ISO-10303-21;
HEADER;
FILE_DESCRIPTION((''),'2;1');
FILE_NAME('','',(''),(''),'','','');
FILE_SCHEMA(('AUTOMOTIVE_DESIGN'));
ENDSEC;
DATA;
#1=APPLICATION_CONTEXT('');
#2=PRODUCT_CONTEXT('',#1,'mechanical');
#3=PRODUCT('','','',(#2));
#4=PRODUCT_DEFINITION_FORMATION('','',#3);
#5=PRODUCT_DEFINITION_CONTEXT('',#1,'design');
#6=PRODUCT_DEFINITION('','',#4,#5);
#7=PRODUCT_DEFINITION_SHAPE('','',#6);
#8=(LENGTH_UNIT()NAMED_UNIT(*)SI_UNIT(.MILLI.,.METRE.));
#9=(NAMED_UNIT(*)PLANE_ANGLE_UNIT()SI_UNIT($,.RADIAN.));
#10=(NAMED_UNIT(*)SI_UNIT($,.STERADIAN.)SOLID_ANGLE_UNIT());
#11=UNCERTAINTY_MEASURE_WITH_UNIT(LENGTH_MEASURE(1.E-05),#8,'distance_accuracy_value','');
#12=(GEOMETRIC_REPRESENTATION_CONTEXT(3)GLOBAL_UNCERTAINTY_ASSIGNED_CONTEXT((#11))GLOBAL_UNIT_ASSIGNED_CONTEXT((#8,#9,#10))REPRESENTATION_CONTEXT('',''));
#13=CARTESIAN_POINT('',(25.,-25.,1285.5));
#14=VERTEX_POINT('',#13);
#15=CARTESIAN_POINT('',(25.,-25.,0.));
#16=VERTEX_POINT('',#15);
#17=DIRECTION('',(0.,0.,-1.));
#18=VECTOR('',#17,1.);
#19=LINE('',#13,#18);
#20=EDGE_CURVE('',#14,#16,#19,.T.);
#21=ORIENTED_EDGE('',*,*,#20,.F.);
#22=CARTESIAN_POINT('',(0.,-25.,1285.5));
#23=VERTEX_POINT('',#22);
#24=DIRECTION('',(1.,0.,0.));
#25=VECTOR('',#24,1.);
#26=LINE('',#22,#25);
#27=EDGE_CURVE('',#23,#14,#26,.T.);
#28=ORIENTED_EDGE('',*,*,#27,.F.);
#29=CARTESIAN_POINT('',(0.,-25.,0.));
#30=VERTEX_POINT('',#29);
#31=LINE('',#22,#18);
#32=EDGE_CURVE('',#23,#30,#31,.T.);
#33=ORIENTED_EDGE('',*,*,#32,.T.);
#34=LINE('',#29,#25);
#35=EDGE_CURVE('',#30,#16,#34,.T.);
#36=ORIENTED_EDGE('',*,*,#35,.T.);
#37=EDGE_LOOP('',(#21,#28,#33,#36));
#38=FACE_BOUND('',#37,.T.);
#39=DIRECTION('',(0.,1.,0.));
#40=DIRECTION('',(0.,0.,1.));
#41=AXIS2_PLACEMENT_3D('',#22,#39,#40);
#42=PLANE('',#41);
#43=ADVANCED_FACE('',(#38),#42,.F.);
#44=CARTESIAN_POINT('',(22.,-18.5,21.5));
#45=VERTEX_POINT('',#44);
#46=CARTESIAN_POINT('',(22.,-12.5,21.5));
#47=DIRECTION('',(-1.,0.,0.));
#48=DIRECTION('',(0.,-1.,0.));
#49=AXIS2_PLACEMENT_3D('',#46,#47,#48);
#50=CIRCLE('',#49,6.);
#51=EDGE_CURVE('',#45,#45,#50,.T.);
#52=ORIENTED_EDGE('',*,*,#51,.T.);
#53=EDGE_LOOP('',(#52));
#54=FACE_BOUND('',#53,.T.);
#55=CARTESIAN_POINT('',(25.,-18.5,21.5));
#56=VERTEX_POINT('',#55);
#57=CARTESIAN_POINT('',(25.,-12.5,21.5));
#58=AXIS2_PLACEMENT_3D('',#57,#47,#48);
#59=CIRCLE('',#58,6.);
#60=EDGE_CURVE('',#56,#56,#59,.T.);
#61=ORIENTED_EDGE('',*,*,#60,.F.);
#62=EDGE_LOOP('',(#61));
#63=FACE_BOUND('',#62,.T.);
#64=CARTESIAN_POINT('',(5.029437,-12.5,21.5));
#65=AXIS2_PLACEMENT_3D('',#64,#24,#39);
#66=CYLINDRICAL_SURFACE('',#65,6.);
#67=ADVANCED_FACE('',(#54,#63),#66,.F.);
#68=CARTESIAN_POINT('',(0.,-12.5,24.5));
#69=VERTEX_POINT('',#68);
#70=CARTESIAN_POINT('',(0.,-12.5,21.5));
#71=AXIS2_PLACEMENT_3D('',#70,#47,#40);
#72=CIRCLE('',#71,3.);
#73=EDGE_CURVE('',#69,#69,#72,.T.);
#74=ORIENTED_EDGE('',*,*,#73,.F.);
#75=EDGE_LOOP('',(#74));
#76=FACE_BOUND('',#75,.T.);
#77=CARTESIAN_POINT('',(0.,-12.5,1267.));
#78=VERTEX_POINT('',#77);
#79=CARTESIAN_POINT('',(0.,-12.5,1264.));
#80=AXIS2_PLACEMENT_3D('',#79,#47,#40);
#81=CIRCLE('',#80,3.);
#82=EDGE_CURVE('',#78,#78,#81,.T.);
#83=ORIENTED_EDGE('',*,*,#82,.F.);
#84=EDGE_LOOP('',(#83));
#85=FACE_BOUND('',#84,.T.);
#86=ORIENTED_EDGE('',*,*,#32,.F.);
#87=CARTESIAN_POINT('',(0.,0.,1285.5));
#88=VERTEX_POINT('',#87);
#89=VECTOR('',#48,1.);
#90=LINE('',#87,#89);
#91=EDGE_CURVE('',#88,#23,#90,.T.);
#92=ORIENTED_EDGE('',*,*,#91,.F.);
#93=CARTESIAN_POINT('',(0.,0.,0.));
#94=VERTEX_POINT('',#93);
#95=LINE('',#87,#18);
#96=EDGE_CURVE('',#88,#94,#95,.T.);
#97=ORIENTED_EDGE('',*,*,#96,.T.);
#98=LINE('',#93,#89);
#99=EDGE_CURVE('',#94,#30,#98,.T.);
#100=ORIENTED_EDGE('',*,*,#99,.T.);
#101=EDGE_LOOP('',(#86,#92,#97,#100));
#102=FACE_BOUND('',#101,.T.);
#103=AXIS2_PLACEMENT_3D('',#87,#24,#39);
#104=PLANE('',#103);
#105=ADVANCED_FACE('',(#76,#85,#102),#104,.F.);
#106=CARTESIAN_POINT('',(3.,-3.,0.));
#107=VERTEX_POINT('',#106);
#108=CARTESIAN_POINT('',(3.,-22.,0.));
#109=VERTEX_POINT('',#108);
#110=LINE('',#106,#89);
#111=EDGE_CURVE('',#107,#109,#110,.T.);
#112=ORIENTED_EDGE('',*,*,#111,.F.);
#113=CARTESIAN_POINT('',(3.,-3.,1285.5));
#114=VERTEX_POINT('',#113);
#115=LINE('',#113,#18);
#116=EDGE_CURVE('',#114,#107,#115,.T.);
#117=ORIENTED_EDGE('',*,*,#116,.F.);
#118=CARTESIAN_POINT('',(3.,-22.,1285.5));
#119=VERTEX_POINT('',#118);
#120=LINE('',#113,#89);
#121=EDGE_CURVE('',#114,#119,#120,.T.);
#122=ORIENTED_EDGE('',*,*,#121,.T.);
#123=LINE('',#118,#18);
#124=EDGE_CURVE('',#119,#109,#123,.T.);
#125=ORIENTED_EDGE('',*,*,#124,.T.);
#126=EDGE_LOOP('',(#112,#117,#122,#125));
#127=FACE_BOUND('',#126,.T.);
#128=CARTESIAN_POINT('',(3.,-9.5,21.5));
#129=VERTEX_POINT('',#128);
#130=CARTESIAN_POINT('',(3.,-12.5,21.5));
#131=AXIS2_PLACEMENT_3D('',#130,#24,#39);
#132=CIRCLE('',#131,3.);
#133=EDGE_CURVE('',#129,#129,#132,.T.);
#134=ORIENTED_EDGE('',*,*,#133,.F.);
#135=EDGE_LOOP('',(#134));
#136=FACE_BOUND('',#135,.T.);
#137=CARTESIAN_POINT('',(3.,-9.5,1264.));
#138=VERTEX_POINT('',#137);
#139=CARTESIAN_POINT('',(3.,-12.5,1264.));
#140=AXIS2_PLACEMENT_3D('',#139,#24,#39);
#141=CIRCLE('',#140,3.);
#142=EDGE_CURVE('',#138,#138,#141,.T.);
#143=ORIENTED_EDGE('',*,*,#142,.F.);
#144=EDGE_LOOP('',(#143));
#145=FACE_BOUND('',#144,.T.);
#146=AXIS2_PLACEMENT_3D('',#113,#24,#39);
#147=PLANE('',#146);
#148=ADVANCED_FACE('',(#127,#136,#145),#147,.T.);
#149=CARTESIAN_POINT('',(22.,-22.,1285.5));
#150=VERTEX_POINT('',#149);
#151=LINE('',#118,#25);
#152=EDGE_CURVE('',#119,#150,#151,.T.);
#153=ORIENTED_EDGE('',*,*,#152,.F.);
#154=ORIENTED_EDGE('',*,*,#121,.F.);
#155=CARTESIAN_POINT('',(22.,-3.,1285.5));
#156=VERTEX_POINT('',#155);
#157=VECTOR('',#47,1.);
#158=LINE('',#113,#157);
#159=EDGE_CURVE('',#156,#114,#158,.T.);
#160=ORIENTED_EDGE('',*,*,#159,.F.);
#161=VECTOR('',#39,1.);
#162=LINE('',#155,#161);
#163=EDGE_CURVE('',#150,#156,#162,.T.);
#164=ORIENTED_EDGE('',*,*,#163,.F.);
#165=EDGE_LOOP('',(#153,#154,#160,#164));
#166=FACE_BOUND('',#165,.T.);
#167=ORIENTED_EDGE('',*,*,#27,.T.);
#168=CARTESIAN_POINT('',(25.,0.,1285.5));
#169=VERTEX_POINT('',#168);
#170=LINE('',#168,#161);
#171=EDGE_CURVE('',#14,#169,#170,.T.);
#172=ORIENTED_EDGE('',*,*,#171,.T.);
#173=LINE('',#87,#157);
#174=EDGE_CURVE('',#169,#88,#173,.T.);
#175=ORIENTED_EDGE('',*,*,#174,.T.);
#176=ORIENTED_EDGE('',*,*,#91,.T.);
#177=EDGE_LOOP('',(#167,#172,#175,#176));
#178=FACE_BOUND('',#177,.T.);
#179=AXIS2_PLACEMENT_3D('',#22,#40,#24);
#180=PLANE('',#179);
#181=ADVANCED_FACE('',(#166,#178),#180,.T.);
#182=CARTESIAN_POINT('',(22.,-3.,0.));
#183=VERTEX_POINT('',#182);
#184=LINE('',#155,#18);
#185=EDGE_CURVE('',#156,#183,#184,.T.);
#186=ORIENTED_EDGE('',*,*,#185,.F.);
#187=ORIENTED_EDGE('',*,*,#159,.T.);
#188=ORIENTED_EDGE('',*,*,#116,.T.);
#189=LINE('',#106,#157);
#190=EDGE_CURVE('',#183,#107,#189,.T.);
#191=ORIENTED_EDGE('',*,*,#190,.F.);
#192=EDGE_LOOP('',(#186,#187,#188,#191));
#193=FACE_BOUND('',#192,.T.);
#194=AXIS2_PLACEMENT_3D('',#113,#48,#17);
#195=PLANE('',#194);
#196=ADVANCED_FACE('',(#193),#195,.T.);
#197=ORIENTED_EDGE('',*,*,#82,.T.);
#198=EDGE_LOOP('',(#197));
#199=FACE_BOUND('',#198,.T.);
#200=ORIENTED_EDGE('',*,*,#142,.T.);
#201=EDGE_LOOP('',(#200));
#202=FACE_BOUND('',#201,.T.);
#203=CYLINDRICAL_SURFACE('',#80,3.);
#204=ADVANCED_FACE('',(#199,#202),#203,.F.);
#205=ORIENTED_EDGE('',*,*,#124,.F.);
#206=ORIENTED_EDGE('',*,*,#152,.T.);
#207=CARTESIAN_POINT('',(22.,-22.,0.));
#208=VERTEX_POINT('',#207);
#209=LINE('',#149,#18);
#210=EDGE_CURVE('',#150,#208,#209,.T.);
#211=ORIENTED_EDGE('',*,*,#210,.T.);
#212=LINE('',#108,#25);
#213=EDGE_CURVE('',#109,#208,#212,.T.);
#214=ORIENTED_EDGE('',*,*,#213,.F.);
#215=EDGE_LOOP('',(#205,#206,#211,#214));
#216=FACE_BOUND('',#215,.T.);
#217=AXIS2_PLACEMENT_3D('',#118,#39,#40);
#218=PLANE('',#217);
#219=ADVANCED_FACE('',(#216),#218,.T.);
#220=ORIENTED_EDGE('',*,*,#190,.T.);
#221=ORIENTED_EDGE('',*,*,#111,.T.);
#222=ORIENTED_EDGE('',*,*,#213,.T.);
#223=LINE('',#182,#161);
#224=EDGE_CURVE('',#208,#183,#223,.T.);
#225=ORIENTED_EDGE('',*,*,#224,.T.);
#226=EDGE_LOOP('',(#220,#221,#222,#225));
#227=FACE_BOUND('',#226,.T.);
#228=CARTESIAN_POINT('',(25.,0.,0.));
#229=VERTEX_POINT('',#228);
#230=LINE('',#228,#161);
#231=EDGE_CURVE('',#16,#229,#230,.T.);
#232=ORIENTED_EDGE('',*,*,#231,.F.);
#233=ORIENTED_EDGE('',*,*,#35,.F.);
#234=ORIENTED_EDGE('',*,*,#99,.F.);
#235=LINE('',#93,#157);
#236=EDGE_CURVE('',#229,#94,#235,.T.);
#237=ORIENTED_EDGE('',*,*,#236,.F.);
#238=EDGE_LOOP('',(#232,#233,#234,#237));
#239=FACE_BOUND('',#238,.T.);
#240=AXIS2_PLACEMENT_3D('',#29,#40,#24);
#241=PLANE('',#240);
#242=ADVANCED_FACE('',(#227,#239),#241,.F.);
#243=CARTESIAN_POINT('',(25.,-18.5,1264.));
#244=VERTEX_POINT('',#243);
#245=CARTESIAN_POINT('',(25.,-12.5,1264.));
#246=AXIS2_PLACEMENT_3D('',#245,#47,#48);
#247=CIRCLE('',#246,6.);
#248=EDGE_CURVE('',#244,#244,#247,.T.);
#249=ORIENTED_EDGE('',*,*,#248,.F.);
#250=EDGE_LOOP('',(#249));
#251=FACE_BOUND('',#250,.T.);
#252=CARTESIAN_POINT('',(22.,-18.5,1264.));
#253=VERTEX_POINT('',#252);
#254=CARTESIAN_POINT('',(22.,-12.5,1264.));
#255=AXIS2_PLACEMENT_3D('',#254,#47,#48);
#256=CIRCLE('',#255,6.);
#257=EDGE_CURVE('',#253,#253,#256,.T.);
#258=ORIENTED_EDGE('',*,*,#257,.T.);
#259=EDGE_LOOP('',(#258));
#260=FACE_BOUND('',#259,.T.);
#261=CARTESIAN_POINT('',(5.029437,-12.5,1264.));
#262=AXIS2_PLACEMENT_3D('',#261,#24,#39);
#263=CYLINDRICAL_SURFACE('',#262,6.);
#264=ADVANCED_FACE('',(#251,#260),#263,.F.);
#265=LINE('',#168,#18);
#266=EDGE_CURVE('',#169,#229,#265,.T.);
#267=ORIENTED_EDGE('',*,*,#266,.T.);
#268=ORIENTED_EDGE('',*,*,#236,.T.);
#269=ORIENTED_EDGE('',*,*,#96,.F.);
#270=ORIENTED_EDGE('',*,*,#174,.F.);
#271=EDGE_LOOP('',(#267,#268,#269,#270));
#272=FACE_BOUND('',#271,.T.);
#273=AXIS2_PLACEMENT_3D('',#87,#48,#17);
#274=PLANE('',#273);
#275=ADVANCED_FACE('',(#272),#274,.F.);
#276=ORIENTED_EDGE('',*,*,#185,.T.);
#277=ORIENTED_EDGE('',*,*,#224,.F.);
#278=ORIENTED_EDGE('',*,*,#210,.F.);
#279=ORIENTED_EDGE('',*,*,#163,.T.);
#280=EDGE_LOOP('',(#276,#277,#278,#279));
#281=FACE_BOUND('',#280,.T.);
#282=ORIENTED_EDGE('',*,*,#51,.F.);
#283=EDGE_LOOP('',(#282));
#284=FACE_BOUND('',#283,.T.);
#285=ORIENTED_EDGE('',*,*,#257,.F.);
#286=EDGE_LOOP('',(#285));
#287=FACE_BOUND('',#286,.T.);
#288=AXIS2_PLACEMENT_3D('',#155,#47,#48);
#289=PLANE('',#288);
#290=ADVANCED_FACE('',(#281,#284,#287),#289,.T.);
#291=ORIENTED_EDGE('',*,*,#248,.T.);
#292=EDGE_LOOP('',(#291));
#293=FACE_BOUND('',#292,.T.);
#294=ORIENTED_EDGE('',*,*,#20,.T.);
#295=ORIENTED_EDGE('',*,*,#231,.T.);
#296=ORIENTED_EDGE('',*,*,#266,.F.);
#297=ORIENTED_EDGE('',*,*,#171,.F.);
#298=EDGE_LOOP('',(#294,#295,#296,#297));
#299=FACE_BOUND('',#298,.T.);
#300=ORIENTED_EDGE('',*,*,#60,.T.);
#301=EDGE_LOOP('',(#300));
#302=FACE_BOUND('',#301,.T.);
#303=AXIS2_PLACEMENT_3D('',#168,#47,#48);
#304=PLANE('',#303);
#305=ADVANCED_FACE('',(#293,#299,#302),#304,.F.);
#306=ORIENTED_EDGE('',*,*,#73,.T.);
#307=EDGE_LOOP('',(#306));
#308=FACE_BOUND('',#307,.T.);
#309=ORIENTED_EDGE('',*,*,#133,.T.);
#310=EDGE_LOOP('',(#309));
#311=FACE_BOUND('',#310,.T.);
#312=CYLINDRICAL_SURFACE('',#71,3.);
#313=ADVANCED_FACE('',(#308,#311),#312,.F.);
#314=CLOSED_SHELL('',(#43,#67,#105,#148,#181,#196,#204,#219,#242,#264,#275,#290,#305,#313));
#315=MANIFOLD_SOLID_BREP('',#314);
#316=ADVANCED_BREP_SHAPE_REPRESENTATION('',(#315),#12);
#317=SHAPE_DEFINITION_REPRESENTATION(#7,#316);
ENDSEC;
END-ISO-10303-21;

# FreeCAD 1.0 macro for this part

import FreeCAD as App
import Part
import Sketcher
from FreeCAD import Vector
Q = App.Units.Quantity

doc = App.newDocument("Part")
body = doc.addObject("PartDesign::Body", "Body")

sketch1 = body.newObject("Sketcher::SketchObject", "Sketch")
sketch1.AttachmentSupport = (doc.getObject("XY_Plane"), [""])
sketch1.MapMode = "FlatFace"
sketch1.addGeometry([
    Part.LineSegment(Vector(0, 0, 0), Vector(0, -25, 0)),
    Part.LineSegment(Vector(0, -25, 0), Vector(25, -25, 0)),
    Part.LineSegment(Vector(25, -25, 0), Vector(25, 0, 0)),
    Part.LineSegment(Vector(25, 0, 0), Vector(0, 0, 0)),
    Part.LineSegment(Vector(22, -22, 0), Vector(3, -22, 0)),
    Part.LineSegment(Vector(3, -22, 0), Vector(3, -3, 0)),
    Part.LineSegment(Vector(3, -3, 0), Vector(22, -3, 0)),
    Part.LineSegment(Vector(22, -3, 0), Vector(22, -22, 0)),
], False)
sketch1.addConstraint([
    Sketcher.Constraint("Coincident", 0, 2, 1, 1),
    Sketcher.Constraint("Coincident", 1, 2, 2, 1),
    Sketcher.Constraint("Coincident", 2, 2, 3, 1),
    Sketcher.Constraint("Coincident", 3, 2, 0, 1),
    Sketcher.Constraint("Coincident", 4, 2, 5, 1),
    Sketcher.Constraint("Coincident", 5, 2, 6, 1),
    Sketcher.Constraint("Coincident", 6, 2, 7, 1),
    Sketcher.Constraint("Coincident", 7, 2, 4, 1),
    Sketcher.Constraint("Vertical", 0),
    Sketcher.Constraint("Horizontal", 1),
    Sketcher.Constraint("Vertical", 2),
    Sketcher.Constraint("Horizontal", 3),
    Sketcher.Constraint("Horizontal", 4),
    Sketcher.Constraint("Vertical", 5),
    Sketcher.Constraint("Horizontal", 6),
    Sketcher.Constraint("Vertical", 7),
    Sketcher.Constraint("Coincident", 3, 2, -1, 1),
    Sketcher.Constraint("Equal", 3, 0),
    Sketcher.Constraint("Equal", 6, 5),
    Sketcher.Constraint("DistanceX", 1, 1, 1, 2, 25.0),
    Sketcher.Constraint("DistanceX", 4, 2, 4, 1, 19.0),
    Sketcher.Constraint("DistanceX", -1, 1, 4, 2, 3.0),
    Sketcher.Constraint("DistanceY", 4, 2, -1, 1, 22.0),
])
pad1 = body.newObject("PartDesign::Pad", "Pad")
pad1.Profile = sketch1
pad1.Length = 1285.5

sketch2 = body.newObject("Sketcher::SketchObject", "Sketch001")
sketch2.AttachmentSupport = (doc.getObject("XZ_Plane"), [""])
sketch2.MapMode = "FlatFace"
sketch2.AttachmentOffset = App.Placement(Vector(0, 0, 12.5), App.Rotation())
sketch2.addGeometry([
    Part.LineSegment(Vector(31.8, 1264, 0), Vector(0, 1264, 0)),
    Part.LineSegment(Vector(0, 1264, 0), Vector(0, 1267, 0)),
    Part.LineSegment(Vector(0, 1267, 0), Vector(30, 1267, 0)),
    Part.LineSegment(Vector(30, 1267, 0), Vector(31.8, 1264, 0)),
], False)
sketch2.addGeometry(Part.LineSegment(Vector(0, 1264, 0), Vector(31.8, 1264, 0)), True)
sketch2.addConstraint([
    Sketcher.Constraint("Coincident", 0, 2, 1, 1),
    Sketcher.Constraint("Coincident", 1, 2, 2, 1),
    Sketcher.Constraint("Coincident", 2, 2, 3, 1),
    Sketcher.Constraint("Coincident", 3, 2, 0, 1),
    Sketcher.Constraint("Horizontal", 0),
    Sketcher.Constraint("Vertical", 1),
    Sketcher.Constraint("Horizontal", 2),
    Sketcher.Constraint("Horizontal", 4),
    Sketcher.Constraint("Coincident", 4, 1, 0, 2),
    Sketcher.Constraint("PointOnObject", 0, 2, -2),
    Sketcher.Constraint("Equal", 0, 4),
    Sketcher.Constraint("DistanceX", 2, 1, 2, 2, 30.0),
    Sketcher.Constraint("DistanceY", 1, 1, 1, 2, 3.0),
    Sketcher.Constraint("Angle", 3, Q("-59 deg")),
    Sketcher.Constraint("DistanceY", -1, 1, 0, 2, 1264.0),
])
groove = body.newObject("PartDesign::Groove", "Groove")
groove.Profile = sketch2
groove.ReferenceAxis = (sketch2, ["Axis0"])
groove.Angle = 360

sketch3 = body.newObject("Sketcher::SketchObject", "Sketch002")
sketch3.AttachmentSupport = (doc.getObject("YZ_Plane"), [""])
sketch3.MapMode = "FlatFace"
sketch3.AttachmentOffset = App.Placement(Vector(0, 0, 25), App.Rotation())
sketch3.addGeometry(Part.Circle(Vector(-12, 1264, 0), Vector(0, 0, 1), 6), False)
sketch3.addConstraint([
    Sketcher.Constraint("Diameter", 0, 12.0),
    Sketcher.Constraint("DistanceY", -1, 1, 0, 3, 1264.0),
    Sketcher.Constraint("DistanceX", 0, 3, -1, 1, 12.5),
])
pocket1 = body.newObject("PartDesign::Pocket", "Pocket")
pocket1.Profile = sketch3
pocket1.Length = 3
doc.recompute()

linearpattern = body.newObject("PartDesign::LinearPattern", "LinearPattern")
linearpattern.Originals = [groove, pocket1]
linearpattern.Direction = (doc.getObject("Z_Axis"), [""])
linearpattern.Mode = "offset"
linearpattern.Offset = 1242.5
linearpattern.Occurrences = 2
linearpattern.Reversed = True
body.Tip = linearpattern

doc.recompute()
